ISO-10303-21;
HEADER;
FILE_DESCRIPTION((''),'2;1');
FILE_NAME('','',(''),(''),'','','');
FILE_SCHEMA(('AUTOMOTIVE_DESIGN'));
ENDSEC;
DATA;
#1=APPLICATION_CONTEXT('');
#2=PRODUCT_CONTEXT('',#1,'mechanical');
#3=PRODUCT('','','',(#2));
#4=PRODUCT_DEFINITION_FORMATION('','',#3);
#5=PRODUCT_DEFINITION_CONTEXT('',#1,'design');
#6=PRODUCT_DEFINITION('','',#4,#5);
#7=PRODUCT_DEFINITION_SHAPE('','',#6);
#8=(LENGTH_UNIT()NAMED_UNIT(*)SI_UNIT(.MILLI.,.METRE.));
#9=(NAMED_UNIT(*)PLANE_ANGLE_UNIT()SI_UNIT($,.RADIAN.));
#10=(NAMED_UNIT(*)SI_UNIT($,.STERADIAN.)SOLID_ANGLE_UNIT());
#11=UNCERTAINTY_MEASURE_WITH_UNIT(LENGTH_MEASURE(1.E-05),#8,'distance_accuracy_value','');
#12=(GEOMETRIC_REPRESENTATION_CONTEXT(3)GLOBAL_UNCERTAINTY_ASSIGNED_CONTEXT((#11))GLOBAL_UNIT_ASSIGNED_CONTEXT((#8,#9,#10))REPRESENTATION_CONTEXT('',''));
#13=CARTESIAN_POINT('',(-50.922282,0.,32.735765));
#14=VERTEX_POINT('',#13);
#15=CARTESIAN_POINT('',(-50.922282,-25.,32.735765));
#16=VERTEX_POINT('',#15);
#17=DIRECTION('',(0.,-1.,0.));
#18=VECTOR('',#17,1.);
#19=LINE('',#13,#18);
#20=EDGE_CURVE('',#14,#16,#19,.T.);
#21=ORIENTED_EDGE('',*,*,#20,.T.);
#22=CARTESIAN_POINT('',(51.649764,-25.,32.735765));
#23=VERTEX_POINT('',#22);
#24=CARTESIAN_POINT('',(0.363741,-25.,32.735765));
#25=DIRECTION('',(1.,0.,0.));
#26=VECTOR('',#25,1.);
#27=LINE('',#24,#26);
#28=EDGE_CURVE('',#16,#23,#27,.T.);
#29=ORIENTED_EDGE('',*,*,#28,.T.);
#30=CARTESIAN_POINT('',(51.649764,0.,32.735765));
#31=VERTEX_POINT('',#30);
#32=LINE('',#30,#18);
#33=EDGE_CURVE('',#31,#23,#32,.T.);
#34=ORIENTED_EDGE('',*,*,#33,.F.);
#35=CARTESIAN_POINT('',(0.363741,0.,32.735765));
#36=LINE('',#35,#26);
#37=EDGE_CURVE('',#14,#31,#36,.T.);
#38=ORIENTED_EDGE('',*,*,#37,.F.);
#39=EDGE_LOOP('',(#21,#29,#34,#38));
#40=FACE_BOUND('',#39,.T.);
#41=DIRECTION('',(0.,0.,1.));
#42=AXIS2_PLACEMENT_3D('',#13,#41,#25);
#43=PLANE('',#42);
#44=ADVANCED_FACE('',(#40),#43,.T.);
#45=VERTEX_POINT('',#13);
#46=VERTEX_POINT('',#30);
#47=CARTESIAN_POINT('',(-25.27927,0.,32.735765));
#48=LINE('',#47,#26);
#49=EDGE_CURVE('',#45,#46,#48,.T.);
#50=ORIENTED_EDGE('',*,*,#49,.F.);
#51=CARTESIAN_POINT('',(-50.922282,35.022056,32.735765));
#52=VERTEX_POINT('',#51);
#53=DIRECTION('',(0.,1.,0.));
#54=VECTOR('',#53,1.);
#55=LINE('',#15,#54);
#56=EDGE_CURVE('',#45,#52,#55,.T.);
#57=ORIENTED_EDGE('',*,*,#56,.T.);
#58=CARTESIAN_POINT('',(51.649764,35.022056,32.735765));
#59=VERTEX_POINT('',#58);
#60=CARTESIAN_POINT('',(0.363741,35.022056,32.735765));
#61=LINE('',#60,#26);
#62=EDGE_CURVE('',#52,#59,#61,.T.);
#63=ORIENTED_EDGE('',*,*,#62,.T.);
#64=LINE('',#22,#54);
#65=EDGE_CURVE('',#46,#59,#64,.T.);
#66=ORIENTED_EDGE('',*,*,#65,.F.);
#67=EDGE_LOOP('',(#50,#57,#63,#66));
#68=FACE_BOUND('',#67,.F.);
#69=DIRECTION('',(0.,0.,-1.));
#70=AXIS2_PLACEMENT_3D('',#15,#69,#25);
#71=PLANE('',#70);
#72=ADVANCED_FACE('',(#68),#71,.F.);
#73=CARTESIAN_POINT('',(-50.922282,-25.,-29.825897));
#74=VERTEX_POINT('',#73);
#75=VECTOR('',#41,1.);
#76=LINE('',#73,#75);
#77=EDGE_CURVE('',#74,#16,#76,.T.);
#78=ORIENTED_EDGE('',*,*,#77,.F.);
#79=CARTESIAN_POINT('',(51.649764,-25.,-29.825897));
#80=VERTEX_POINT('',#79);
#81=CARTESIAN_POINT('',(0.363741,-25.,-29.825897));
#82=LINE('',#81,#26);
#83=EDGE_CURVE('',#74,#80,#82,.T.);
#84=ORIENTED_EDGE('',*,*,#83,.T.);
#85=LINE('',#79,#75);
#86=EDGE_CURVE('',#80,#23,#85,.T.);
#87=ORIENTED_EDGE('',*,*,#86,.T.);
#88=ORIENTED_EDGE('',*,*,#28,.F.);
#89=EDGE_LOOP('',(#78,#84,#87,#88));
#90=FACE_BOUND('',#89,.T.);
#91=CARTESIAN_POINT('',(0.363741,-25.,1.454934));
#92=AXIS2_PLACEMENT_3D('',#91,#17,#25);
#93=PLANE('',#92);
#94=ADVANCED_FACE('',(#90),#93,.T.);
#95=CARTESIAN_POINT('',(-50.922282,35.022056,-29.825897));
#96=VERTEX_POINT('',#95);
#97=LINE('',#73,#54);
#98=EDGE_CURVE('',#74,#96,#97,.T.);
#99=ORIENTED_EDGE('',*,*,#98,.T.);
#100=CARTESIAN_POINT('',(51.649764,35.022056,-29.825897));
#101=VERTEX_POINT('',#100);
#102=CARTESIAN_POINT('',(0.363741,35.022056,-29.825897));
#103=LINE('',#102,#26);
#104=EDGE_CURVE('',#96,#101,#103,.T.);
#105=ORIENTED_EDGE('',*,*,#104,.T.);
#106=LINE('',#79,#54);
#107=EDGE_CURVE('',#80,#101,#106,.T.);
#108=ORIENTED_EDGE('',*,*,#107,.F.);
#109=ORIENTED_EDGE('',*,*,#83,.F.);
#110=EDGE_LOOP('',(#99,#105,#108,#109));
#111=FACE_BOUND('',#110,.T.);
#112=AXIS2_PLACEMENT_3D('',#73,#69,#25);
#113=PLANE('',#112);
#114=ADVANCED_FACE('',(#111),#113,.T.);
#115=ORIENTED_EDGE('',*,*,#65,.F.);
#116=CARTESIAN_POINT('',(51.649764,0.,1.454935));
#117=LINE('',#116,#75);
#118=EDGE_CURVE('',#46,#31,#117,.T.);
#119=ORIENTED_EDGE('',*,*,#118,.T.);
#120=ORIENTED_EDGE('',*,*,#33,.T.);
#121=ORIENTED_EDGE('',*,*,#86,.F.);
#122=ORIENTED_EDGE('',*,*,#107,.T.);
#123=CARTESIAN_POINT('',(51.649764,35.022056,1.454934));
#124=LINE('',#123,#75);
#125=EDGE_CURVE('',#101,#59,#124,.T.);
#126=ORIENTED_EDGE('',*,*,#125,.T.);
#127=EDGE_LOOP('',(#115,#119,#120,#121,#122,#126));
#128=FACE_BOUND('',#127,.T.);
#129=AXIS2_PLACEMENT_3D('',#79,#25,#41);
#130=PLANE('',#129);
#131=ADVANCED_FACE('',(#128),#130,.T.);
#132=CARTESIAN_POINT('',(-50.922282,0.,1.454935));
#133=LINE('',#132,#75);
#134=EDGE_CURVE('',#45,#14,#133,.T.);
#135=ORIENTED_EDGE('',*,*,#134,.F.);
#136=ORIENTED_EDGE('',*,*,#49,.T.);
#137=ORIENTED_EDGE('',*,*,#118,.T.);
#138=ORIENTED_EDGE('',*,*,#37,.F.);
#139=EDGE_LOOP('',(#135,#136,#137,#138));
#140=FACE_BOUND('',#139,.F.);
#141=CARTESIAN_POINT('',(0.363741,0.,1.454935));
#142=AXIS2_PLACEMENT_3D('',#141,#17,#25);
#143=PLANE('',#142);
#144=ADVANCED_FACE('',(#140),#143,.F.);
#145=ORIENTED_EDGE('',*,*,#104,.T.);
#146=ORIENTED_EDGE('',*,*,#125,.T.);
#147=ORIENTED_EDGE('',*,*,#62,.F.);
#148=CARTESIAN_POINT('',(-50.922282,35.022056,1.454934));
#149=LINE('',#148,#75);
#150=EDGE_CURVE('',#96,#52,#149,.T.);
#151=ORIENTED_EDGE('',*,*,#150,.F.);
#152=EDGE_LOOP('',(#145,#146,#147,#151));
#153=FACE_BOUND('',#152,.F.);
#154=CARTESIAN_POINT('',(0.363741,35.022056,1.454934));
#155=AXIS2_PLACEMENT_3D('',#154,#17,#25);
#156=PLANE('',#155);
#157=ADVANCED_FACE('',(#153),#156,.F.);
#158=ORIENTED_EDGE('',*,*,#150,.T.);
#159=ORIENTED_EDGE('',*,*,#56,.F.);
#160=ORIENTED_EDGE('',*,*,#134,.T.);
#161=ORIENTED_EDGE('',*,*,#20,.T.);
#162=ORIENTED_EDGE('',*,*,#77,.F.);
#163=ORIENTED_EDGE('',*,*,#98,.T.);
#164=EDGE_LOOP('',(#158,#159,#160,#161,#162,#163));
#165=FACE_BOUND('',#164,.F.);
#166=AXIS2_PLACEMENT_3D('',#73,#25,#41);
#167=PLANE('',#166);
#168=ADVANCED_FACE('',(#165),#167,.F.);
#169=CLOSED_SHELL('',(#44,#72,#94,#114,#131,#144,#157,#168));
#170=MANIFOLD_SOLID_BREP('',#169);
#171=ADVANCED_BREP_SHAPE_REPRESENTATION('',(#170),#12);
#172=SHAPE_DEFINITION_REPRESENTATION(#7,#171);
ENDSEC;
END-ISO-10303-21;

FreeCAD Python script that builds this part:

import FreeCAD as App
import Part
import Sketcher
from FreeCAD import Vector


def add_polygon(sketch, points):
    """Adds a closed chain of lines whose ends are joined by coincident constraints."""
    first, n = sketch.GeometryCount, len(points)
    for a, b in zip(points, points[1:] + points[:1]):
        sketch.addGeometry(Part.LineSegment(App.Vector(*a, 0), App.Vector(*b, 0)), False)
    for i in range(n):
        sketch.addConstraint(Sketcher.Constraint("Coincident", first + i, 2, first + (i + 1) % n, 1))

doc = App.newDocument("Part")
body = doc.addObject("PartDesign::Body", "Body")

# Sketch on XZ plane
sketch1 = body.newObject("Sketcher::SketchObject", "Sketch")
sketch1.AttachmentSupport = (doc.getObject("XZ_Plane"), [""])
sketch1.MapMode = "FlatFace"
add_polygon(sketch1, [(-51, 33), (-51, -30), (52, -30), (52, 33)])  # lines 0-3
sketch1.addConstraint([
    Sketcher.Constraint("Vertical", 0),
    Sketcher.Constraint("Horizontal", 1),
    Sketcher.Constraint("Vertical", 2),
    Sketcher.Constraint("Horizontal", 3),
    Sketcher.Constraint("DistanceY", 0, 2, 0, 1, 62.561661),
    Sketcher.Constraint("DistanceX", 1, 1, 1, 2, 102.572046),
    Sketcher.Constraint("DistanceX", 0, 2, -1, 1, 50.922282),
    Sketcher.Constraint("DistanceY", 0, 2, -1, 1, 29.825896),
])
pad1 = body.newObject("PartDesign::Pad", "Pad")
pad1.Profile = sketch1
pad1.Length = 25

# Sketch on XZ plane
sketch2 = body.newObject("Sketcher::SketchObject", "Sketch001")
sketch2.AttachmentSupport = (doc.getObject("XZ_Plane"), [""])
sketch2.MapMode = "FlatFace"
sketch2.AttachmentOffset = App.Placement(Vector(0, 0, 25), App.Rotation())
add_polygon(sketch2, [(-51, 33), (-51, -30), (52, -30), (52, 33)])  # lines 0-3
sketch2.addConstraint([
    Sketcher.Constraint("Vertical", 0),
    Sketcher.Constraint("Horizontal", 1),
    Sketcher.Constraint("Vertical", 2),
    Sketcher.Constraint("Horizontal", 3),
    Sketcher.Constraint("DistanceY", 0, 2, 0, 1, 62.561662),
    Sketcher.Constraint("DistanceX", 1, 1, 1, 2, 102.572046),
    Sketcher.Constraint("DistanceX", 0, 2, -1, 1, 50.922282),
    Sketcher.Constraint("DistanceY", 0, 2, -1, 1, 29.825897),
])
pad2 = body.newObject("PartDesign::Pad", "Pad001")
pad2.Profile = sketch2
pad2.Length = 60.022056
pad2.Reversed = True

doc.recompute()
